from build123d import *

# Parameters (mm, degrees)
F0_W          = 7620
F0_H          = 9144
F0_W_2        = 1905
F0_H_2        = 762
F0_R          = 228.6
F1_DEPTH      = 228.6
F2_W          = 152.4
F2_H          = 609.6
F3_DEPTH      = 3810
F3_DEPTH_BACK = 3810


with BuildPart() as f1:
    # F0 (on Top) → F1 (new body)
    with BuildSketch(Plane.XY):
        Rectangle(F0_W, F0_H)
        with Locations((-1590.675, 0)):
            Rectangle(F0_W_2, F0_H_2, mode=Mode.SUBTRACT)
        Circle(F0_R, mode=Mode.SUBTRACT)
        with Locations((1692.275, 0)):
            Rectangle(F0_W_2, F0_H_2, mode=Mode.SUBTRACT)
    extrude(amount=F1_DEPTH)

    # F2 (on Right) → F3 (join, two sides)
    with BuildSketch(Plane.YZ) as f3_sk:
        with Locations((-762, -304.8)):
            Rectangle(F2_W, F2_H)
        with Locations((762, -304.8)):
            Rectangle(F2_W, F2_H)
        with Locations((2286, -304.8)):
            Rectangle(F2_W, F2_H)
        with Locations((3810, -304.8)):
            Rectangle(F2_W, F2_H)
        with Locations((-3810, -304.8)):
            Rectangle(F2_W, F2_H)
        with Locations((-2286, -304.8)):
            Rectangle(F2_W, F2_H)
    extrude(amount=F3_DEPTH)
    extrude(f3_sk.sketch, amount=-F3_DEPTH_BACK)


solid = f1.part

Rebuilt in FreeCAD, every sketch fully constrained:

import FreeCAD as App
import Part
import Sketcher
from FreeCAD import Vector
Q = App.Units.Quantity

doc = App.newDocument("Part")
params = doc.addObject("Spreadsheet::Sheet", "Params")
for row, (alias, value) in enumerate([
    ("sketch1_diameter", "18 in"),
    ("sketch1_width", "300 in"),
    ("sketch1_width2", "75 in"),
    ("sketch1_height", "360 in"),
    ("sketch1_height2", "30 in"),
    ("pad1_length", "9 in"),
    ("sketch2_width", "6 in"),
    ("sketch2_height", "24 in"),
    ("pad2_length", "150 in"),
    ("pad2_length2", "150 in"),
], start=1):
    params.set(f"A{row}", alias)
    params.set(f"B{row}", "=" + value)
    params.setAlias(f"B{row}", alias)

body = doc.addObject("PartDesign::Body", "Body")

# Sketch on XY plane
sketch1 = body.newObject("Sketcher::SketchObject", "Sketch")
sketch1.AttachmentSupport = (doc.getObject("XY_Plane"), [""])
sketch1.MapMode = "FlatFace"
sketch1.addGeometry(Part.LineSegment(Vector(-3810, 4572, 0), Vector(-3810, -4572, 0)), False)
sketch1.addGeometry(Part.LineSegment(Vector(-3810, -4572, 0), Vector(3810, -4572, 0)), False)
sketch1.addGeometry(Part.LineSegment(Vector(3810, -4572, 0), Vector(3810, 4572, 0)), False)
sketch1.addGeometry(Part.LineSegment(Vector(3810, 4572, 0), Vector(-3810, 4572, 0)), False)
sketch1.addGeometry(Part.LineSegment(Vector(-638.175, -381, 0), Vector(-2543.175, -381, 0)), False)
sketch1.addGeometry(Part.LineSegment(Vector(-2543.175, -381, 0), Vector(-2543.175, 381, 0)), False)
sketch1.addGeometry(Part.LineSegment(Vector(-2543.175, 381, 0), Vector(-638.175, 381, 0)), False)
sketch1.addGeometry(Part.LineSegment(Vector(-638.175, 381, 0), Vector(-638.175, -381, 0)), False)
sketch1.addGeometry(Part.Circle(Vector(0, 0, 0), Vector(0, 0, 1), 228.6), False)
sketch1.addGeometry(Part.LineSegment(Vector(2644.775, -381, 0), Vector(739.775, -381, 0)), False)
sketch1.addGeometry(Part.LineSegment(Vector(739.775, -381, 0), Vector(739.775, 381, 0)), False)
sketch1.addGeometry(Part.LineSegment(Vector(739.775, 381, 0), Vector(2644.775, 381, 0)), False)
sketch1.addGeometry(Part.LineSegment(Vector(2644.775, 381, 0), Vector(2644.775, -381, 0)), False)
sketch1.addConstraint(Sketcher.Constraint("Coincident", 0, 2, 1, 1))
sketch1.addConstraint(Sketcher.Constraint("Coincident", 1, 2, 2, 1))
sketch1.addConstraint(Sketcher.Constraint("Coincident", 2, 2, 3, 1))
sketch1.addConstraint(Sketcher.Constraint("Coincident", 3, 2, 0, 1))
sketch1.addConstraint(Sketcher.Constraint("Coincident", 4, 2, 5, 1))
sketch1.addConstraint(Sketcher.Constraint("Coincident", 5, 2, 6, 1))
sketch1.addConstraint(Sketcher.Constraint("Coincident", 6, 2, 7, 1))
sketch1.addConstraint(Sketcher.Constraint("Coincident", 7, 2, 4, 1))
sketch1.addConstraint(Sketcher.Constraint("Coincident", 9, 2, 10, 1))
sketch1.addConstraint(Sketcher.Constraint("Coincident", 10, 2, 11, 1))
sketch1.addConstraint(Sketcher.Constraint("Coincident", 11, 2, 12, 1))
sketch1.addConstraint(Sketcher.Constraint("Coincident", 12, 2, 9, 1))
sketch1.addConstraint(Sketcher.Constraint("Vertical", 0))
sketch1.addConstraint(Sketcher.Constraint("Horizontal", 1))
sketch1.addConstraint(Sketcher.Constraint("Vertical", 2))
sketch1.addConstraint(Sketcher.Constraint("Horizontal", 3))
sketch1.addConstraint(Sketcher.Constraint("Horizontal", 4))
sketch1.addConstraint(Sketcher.Constraint("Vertical", 5))
sketch1.addConstraint(Sketcher.Constraint("Horizontal", 6))
sketch1.addConstraint(Sketcher.Constraint("Vertical", 7))
sketch1.addConstraint(Sketcher.Constraint("Horizontal", 9))
sketch1.addConstraint(Sketcher.Constraint("Vertical", 10))
sketch1.addConstraint(Sketcher.Constraint("Horizontal", 11))
sketch1.addConstraint(Sketcher.Constraint("Vertical", 12))
sketch1.addConstraint(Sketcher.Constraint("Coincident", 8, 3, -1, 1))
sketch1.addConstraint(Sketcher.Constraint("Symmetric", 0, 2, 2, 2, -1, 1))
sketch1.addConstraint(Sketcher.Constraint("Horizontal", 7, 2, 9, 2))
sketch1.addConstraint(Sketcher.Constraint("Horizontal", 6, 2, 10, 2))
sketch1.addConstraint(Sketcher.Constraint("Equal", 6, 9))
sketch1.addConstraint(Sketcher.Constraint("Diameter", 8, Q("18 in")))
sketch1.addConstraint(Sketcher.Constraint("DistanceX", 1, 1, 1, 2, Q("300 in")))
sketch1.addConstraint(Sketcher.Constraint("DistanceX", 4, 2, 4, 1, Q("75 in")))
sketch1.addConstraint(Sketcher.Constraint("DistanceY", 0, 2, 0, 1, Q("360 in")))
sketch1.addConstraint(Sketcher.Constraint("DistanceY", 5, 1, 5, 2, Q("30 in")))
sketch1.addConstraint(Sketcher.Constraint("DistanceY", 4, 2, -1, 1, Q("15 in")))
sketch1.addConstraint(Sketcher.Constraint("DistanceX", 7, 2, 9, 2, Q("54.25 in")))
sketch1.addConstraint(Sketcher.Constraint("DistanceX", 4, 2, -1, 1, Q("100.125 in")))
sketch1.setExpression("Constraints[29]", "Params.sketch1_diameter")
sketch1.setExpression("Constraints[30]", "Params.sketch1_width")
sketch1.setExpression("Constraints[31]", "Params.sketch1_width2")
sketch1.setExpression("Constraints[32]", "Params.sketch1_height")
sketch1.setExpression("Constraints[33]", "Params.sketch1_height2")
pad1 = body.newObject("PartDesign::Pad", "Pad")
pad1.Profile = sketch1
pad1.setExpression("Length", "Params.pad1_length")

# Sketch on YZ plane
sketch2 = body.newObject("Sketcher::SketchObject", "Sketch001")
sketch2.AttachmentSupport = (doc.getObject("YZ_Plane"), [""])
sketch2.MapMode = "FlatFace"
sketch2.addGeometry(Part.LineSegment(Vector(-838.2, 0, 0), Vector(-838.2, -609.6, 0)), False)
sketch2.addGeometry(Part.LineSegment(Vector(-838.2, -609.6, 0), Vector(-685.8, -609.6, 0)), False)
sketch2.addGeometry(Part.LineSegment(Vector(-685.8, -609.6, 0), Vector(-685.8, 0, 0)), False)
sketch2.addGeometry(Part.LineSegment(Vector(-685.8, 0, 0), Vector(-838.2, 0, 0)), False)
sketch2.addGeometry(Part.LineSegment(Vector(685.8, 0, 0), Vector(685.8, -609.6, 0)), False)
sketch2.addGeometry(Part.LineSegment(Vector(685.8, -609.6, 0), Vector(838.2, -609.6, 0)), False)
sketch2.addGeometry(Part.LineSegment(Vector(838.2, -609.6, 0), Vector(838.2, 0, 0)), False)
sketch2.addGeometry(Part.LineSegment(Vector(838.2, 0, 0), Vector(685.8, 0, 0)), False)
sketch2.addGeometry(Part.LineSegment(Vector(2209.8, 0, 0), Vector(2209.8, -609.6, 0)), False)
sketch2.addGeometry(Part.LineSegment(Vector(2209.8, -609.6, 0), Vector(2362.2, -609.6, 0)), False)
sketch2.addGeometry(Part.LineSegment(Vector(2362.2, -609.6, 0), Vector(2362.2, 0, 0)), False)
sketch2.addGeometry(Part.LineSegment(Vector(2362.2, 0, 0), Vector(2209.8, 0, 0)), False)
sketch2.addGeometry(Part.LineSegment(Vector(3733.8, 0, 0), Vector(3733.8, -609.6, 0)), False)
sketch2.addGeometry(Part.LineSegment(Vector(3733.8, -609.6, 0), Vector(3886.2, -609.6, 0)), False)
sketch2.addGeometry(Part.LineSegment(Vector(3886.2, -609.6, 0), Vector(3886.2, 0, 0)), False)
sketch2.addGeometry(Part.LineSegment(Vector(3886.2, 0, 0), Vector(3733.8, 0, 0)), False)
sketch2.addGeometry(Part.LineSegment(Vector(-3886.2, 0, 0), Vector(-3886.2, -609.6, 0)), False)
sketch2.addGeometry(Part.LineSegment(Vector(-3886.2, -609.6, 0), Vector(-3733.8, -609.6, 0)), False)
sketch2.addGeometry(Part.LineSegment(Vector(-3733.8, -609.6, 0), Vector(-3733.8, 0, 0)), False)
sketch2.addGeometry(Part.LineSegment(Vector(-3733.8, 0, 0), Vector(-3886.2, 0, 0)), False)
sketch2.addGeometry(Part.LineSegment(Vector(-2362.2, 0, 0), Vector(-2362.2, -609.6, 0)), False)
sketch2.addGeometry(Part.LineSegment(Vector(-2362.2, -609.6, 0), Vector(-2209.8, -609.6, 0)), False)
sketch2.addGeometry(Part.LineSegment(Vector(-2209.8, -609.6, 0), Vector(-2209.8, 0, 0)), False)
sketch2.addGeometry(Part.LineSegment(Vector(-2209.8, 0, 0), Vector(-2362.2, 0, 0)), False)
sketch2.addConstraint(Sketcher.Constraint("Coincident", 0, 2, 1, 1))
sketch2.addConstraint(Sketcher.Constraint("Coincident", 1, 2, 2, 1))
sketch2.addConstraint(Sketcher.Constraint("Coincident", 2, 2, 3, 1))
sketch2.addConstraint(Sketcher.Constraint("Coincident", 3, 2, 0, 1))
sketch2.addConstraint(Sketcher.Constraint("Coincident", 4, 2, 5, 1))
sketch2.addConstraint(Sketcher.Constraint("Coincident", 5, 2, 6, 1))
sketch2.addConstraint(Sketcher.Constraint("Coincident", 6, 2, 7, 1))
sketch2.addConstraint(Sketcher.Constraint("Coincident", 7, 2, 4, 1))
sketch2.addConstraint(Sketcher.Constraint("Coincident", 8, 2, 9, 1))
sketch2.addConstraint(Sketcher.Constraint("Coincident", 9, 2, 10, 1))
sketch2.addConstraint(Sketcher.Constraint("Coincident", 10, 2, 11, 1))
sketch2.addConstraint(Sketcher.Constraint("Coincident", 11, 2, 8, 1))
sketch2.addConstraint(Sketcher.Constraint("Coincident", 12, 2, 13, 1))
sketch2.addConstraint(Sketcher.Constraint("Coincident", 13, 2, 14, 1))
sketch2.addConstraint(Sketcher.Constraint("Coincident", 14, 2, 15, 1))
sketch2.addConstraint(Sketcher.Constraint("Coincident", 15, 2, 12, 1))
sketch2.addConstraint(Sketcher.Constraint("Coincident", 16, 2, 17, 1))
sketch2.addConstraint(Sketcher.Constraint("Coincident", 17, 2, 18, 1))
sketch2.addConstraint(Sketcher.Constraint("Coincident", 18, 2, 19, 1))
sketch2.addConstraint(Sketcher.Constraint("Coincident", 19, 2, 16, 1))
sketch2.addConstraint(Sketcher.Constraint("Coincident", 20, 2, 21, 1))
sketch2.addConstraint(Sketcher.Constraint("Coincident", 21, 2, 22, 1))
sketch2.addConstraint(Sketcher.Constraint("Coincident", 22, 2, 23, 1))
sketch2.addConstraint(Sketcher.Constraint("Coincident", 23, 2, 20, 1))
sketch2.addConstraint(Sketcher.Constraint("Vertical", 0))
sketch2.addConstraint(Sketcher.Constraint("Horizontal", 1))
sketch2.addConstraint(Sketcher.Constraint("Vertical", 2))
sketch2.addConstraint(Sketcher.Constraint("Horizontal", 3))
sketch2.addConstraint(Sketcher.Constraint("Vertical", 4))
sketch2.addConstraint(Sketcher.Constraint("Horizontal", 5))
sketch2.addConstraint(Sketcher.Constraint("Vertical", 6))
sketch2.addConstraint(Sketcher.Constraint("Horizontal", 7))
sketch2.addConstraint(Sketcher.Constraint("Vertical", 8))
sketch2.addConstraint(Sketcher.Constraint("Horizontal", 9))
sketch2.addConstraint(Sketcher.Constraint("Vertical", 10))
sketch2.addConstraint(Sketcher.Constraint("Horizontal", 11))
sketch2.addConstraint(Sketcher.Constraint("Vertical", 12))
sketch2.addConstraint(Sketcher.Constraint("Horizontal", 13))
sketch2.addConstraint(Sketcher.Constraint("Vertical", 14))
sketch2.addConstraint(Sketcher.Constraint("Horizontal", 15))
sketch2.addConstraint(Sketcher.Constraint("Vertical", 16))
sketch2.addConstraint(Sketcher.Constraint("Horizontal", 17))
sketch2.addConstraint(Sketcher.Constraint("Vertical", 18))
sketch2.addConstraint(Sketcher.Constraint("Horizontal", 19))
sketch2.addConstraint(Sketcher.Constraint("Vertical", 20))
sketch2.addConstraint(Sketcher.Constraint("Horizontal", 21))
sketch2.addConstraint(Sketcher.Constraint("Vertical", 22))
sketch2.addConstraint(Sketcher.Constraint("Horizontal", 23))
sketch2.addConstraint(Sketcher.Constraint("Symmetric", 3, 2, 6, 2, -1, 1))
sketch2.addConstraint(Sketcher.Constraint("Symmetric", 15, 2, 18, 2, -1, 1))
sketch2.addConstraint(Sketcher.Constraint("Symmetric", 11, 2, 22, 2, -1, 1))
sketch2.addConstraint(Sketcher.Constraint("Symmetric", 1, 2, 4, 2, -2))
sketch2.addConstraint(Sketcher.Constraint("Symmetric", 13, 2, 16, 2, -2))
sketch2.addConstraint(Sketcher.Constraint("Symmetric", 9, 2, 20, 2, -2))
sketch2.addConstraint(Sketcher.Constraint("PointOnObject", 2, 2, -1))
sketch2.addConstraint(Sketcher.Constraint("PointOnObject", 10, 2, -1))
sketch2.addConstraint(Sketcher.Constraint("PointOnObject", 14, 2, -1))
sketch2.addConstraint(Sketcher.Constraint("Horizontal", 5, 2, 8, 2))
sketch2.addConstraint(Sketcher.Constraint("Horizontal", 9, 2, 12, 2))
sketch2.addConstraint(Sketcher.Constraint("Equal", 7, 9))
sketch2.addConstraint(Sketcher.Constraint("Equal", 11, 13))
sketch2.addConstraint(Sketcher.Constraint("DistanceX", 1, 1, 1, 2, Q("6 in")))
sketch2.addConstraint(Sketcher.Constraint("DistanceY", 0, 2, 0, 1, Q("24 in")))
sketch2.addConstraint(Sketcher.Constraint("DistanceX", 0, 2, -1, 1, Q("33 in")))
sketch2.addConstraint(Sketcher.Constraint("DistanceX", -1, 1, 8, 2, Q("87 in")))
sketch2.addConstraint(Sketcher.Constraint("DistanceX", -1, 1, 12, 2, Q("147 in")))
sketch2.setExpression("Constraints[61]", "Params.sketch2_width")
sketch2.setExpression("Constraints[62]", "Params.sketch2_height")
pad2 = body.newObject("PartDesign::Pad", "Pad001")
pad2.Profile = sketch2
pad2.Type = "TwoLengths"
pad2.setExpression("Length", "Params.pad2_length")
pad2.setExpression("Length2", "Params.pad2_length2")

doc.recompute()
